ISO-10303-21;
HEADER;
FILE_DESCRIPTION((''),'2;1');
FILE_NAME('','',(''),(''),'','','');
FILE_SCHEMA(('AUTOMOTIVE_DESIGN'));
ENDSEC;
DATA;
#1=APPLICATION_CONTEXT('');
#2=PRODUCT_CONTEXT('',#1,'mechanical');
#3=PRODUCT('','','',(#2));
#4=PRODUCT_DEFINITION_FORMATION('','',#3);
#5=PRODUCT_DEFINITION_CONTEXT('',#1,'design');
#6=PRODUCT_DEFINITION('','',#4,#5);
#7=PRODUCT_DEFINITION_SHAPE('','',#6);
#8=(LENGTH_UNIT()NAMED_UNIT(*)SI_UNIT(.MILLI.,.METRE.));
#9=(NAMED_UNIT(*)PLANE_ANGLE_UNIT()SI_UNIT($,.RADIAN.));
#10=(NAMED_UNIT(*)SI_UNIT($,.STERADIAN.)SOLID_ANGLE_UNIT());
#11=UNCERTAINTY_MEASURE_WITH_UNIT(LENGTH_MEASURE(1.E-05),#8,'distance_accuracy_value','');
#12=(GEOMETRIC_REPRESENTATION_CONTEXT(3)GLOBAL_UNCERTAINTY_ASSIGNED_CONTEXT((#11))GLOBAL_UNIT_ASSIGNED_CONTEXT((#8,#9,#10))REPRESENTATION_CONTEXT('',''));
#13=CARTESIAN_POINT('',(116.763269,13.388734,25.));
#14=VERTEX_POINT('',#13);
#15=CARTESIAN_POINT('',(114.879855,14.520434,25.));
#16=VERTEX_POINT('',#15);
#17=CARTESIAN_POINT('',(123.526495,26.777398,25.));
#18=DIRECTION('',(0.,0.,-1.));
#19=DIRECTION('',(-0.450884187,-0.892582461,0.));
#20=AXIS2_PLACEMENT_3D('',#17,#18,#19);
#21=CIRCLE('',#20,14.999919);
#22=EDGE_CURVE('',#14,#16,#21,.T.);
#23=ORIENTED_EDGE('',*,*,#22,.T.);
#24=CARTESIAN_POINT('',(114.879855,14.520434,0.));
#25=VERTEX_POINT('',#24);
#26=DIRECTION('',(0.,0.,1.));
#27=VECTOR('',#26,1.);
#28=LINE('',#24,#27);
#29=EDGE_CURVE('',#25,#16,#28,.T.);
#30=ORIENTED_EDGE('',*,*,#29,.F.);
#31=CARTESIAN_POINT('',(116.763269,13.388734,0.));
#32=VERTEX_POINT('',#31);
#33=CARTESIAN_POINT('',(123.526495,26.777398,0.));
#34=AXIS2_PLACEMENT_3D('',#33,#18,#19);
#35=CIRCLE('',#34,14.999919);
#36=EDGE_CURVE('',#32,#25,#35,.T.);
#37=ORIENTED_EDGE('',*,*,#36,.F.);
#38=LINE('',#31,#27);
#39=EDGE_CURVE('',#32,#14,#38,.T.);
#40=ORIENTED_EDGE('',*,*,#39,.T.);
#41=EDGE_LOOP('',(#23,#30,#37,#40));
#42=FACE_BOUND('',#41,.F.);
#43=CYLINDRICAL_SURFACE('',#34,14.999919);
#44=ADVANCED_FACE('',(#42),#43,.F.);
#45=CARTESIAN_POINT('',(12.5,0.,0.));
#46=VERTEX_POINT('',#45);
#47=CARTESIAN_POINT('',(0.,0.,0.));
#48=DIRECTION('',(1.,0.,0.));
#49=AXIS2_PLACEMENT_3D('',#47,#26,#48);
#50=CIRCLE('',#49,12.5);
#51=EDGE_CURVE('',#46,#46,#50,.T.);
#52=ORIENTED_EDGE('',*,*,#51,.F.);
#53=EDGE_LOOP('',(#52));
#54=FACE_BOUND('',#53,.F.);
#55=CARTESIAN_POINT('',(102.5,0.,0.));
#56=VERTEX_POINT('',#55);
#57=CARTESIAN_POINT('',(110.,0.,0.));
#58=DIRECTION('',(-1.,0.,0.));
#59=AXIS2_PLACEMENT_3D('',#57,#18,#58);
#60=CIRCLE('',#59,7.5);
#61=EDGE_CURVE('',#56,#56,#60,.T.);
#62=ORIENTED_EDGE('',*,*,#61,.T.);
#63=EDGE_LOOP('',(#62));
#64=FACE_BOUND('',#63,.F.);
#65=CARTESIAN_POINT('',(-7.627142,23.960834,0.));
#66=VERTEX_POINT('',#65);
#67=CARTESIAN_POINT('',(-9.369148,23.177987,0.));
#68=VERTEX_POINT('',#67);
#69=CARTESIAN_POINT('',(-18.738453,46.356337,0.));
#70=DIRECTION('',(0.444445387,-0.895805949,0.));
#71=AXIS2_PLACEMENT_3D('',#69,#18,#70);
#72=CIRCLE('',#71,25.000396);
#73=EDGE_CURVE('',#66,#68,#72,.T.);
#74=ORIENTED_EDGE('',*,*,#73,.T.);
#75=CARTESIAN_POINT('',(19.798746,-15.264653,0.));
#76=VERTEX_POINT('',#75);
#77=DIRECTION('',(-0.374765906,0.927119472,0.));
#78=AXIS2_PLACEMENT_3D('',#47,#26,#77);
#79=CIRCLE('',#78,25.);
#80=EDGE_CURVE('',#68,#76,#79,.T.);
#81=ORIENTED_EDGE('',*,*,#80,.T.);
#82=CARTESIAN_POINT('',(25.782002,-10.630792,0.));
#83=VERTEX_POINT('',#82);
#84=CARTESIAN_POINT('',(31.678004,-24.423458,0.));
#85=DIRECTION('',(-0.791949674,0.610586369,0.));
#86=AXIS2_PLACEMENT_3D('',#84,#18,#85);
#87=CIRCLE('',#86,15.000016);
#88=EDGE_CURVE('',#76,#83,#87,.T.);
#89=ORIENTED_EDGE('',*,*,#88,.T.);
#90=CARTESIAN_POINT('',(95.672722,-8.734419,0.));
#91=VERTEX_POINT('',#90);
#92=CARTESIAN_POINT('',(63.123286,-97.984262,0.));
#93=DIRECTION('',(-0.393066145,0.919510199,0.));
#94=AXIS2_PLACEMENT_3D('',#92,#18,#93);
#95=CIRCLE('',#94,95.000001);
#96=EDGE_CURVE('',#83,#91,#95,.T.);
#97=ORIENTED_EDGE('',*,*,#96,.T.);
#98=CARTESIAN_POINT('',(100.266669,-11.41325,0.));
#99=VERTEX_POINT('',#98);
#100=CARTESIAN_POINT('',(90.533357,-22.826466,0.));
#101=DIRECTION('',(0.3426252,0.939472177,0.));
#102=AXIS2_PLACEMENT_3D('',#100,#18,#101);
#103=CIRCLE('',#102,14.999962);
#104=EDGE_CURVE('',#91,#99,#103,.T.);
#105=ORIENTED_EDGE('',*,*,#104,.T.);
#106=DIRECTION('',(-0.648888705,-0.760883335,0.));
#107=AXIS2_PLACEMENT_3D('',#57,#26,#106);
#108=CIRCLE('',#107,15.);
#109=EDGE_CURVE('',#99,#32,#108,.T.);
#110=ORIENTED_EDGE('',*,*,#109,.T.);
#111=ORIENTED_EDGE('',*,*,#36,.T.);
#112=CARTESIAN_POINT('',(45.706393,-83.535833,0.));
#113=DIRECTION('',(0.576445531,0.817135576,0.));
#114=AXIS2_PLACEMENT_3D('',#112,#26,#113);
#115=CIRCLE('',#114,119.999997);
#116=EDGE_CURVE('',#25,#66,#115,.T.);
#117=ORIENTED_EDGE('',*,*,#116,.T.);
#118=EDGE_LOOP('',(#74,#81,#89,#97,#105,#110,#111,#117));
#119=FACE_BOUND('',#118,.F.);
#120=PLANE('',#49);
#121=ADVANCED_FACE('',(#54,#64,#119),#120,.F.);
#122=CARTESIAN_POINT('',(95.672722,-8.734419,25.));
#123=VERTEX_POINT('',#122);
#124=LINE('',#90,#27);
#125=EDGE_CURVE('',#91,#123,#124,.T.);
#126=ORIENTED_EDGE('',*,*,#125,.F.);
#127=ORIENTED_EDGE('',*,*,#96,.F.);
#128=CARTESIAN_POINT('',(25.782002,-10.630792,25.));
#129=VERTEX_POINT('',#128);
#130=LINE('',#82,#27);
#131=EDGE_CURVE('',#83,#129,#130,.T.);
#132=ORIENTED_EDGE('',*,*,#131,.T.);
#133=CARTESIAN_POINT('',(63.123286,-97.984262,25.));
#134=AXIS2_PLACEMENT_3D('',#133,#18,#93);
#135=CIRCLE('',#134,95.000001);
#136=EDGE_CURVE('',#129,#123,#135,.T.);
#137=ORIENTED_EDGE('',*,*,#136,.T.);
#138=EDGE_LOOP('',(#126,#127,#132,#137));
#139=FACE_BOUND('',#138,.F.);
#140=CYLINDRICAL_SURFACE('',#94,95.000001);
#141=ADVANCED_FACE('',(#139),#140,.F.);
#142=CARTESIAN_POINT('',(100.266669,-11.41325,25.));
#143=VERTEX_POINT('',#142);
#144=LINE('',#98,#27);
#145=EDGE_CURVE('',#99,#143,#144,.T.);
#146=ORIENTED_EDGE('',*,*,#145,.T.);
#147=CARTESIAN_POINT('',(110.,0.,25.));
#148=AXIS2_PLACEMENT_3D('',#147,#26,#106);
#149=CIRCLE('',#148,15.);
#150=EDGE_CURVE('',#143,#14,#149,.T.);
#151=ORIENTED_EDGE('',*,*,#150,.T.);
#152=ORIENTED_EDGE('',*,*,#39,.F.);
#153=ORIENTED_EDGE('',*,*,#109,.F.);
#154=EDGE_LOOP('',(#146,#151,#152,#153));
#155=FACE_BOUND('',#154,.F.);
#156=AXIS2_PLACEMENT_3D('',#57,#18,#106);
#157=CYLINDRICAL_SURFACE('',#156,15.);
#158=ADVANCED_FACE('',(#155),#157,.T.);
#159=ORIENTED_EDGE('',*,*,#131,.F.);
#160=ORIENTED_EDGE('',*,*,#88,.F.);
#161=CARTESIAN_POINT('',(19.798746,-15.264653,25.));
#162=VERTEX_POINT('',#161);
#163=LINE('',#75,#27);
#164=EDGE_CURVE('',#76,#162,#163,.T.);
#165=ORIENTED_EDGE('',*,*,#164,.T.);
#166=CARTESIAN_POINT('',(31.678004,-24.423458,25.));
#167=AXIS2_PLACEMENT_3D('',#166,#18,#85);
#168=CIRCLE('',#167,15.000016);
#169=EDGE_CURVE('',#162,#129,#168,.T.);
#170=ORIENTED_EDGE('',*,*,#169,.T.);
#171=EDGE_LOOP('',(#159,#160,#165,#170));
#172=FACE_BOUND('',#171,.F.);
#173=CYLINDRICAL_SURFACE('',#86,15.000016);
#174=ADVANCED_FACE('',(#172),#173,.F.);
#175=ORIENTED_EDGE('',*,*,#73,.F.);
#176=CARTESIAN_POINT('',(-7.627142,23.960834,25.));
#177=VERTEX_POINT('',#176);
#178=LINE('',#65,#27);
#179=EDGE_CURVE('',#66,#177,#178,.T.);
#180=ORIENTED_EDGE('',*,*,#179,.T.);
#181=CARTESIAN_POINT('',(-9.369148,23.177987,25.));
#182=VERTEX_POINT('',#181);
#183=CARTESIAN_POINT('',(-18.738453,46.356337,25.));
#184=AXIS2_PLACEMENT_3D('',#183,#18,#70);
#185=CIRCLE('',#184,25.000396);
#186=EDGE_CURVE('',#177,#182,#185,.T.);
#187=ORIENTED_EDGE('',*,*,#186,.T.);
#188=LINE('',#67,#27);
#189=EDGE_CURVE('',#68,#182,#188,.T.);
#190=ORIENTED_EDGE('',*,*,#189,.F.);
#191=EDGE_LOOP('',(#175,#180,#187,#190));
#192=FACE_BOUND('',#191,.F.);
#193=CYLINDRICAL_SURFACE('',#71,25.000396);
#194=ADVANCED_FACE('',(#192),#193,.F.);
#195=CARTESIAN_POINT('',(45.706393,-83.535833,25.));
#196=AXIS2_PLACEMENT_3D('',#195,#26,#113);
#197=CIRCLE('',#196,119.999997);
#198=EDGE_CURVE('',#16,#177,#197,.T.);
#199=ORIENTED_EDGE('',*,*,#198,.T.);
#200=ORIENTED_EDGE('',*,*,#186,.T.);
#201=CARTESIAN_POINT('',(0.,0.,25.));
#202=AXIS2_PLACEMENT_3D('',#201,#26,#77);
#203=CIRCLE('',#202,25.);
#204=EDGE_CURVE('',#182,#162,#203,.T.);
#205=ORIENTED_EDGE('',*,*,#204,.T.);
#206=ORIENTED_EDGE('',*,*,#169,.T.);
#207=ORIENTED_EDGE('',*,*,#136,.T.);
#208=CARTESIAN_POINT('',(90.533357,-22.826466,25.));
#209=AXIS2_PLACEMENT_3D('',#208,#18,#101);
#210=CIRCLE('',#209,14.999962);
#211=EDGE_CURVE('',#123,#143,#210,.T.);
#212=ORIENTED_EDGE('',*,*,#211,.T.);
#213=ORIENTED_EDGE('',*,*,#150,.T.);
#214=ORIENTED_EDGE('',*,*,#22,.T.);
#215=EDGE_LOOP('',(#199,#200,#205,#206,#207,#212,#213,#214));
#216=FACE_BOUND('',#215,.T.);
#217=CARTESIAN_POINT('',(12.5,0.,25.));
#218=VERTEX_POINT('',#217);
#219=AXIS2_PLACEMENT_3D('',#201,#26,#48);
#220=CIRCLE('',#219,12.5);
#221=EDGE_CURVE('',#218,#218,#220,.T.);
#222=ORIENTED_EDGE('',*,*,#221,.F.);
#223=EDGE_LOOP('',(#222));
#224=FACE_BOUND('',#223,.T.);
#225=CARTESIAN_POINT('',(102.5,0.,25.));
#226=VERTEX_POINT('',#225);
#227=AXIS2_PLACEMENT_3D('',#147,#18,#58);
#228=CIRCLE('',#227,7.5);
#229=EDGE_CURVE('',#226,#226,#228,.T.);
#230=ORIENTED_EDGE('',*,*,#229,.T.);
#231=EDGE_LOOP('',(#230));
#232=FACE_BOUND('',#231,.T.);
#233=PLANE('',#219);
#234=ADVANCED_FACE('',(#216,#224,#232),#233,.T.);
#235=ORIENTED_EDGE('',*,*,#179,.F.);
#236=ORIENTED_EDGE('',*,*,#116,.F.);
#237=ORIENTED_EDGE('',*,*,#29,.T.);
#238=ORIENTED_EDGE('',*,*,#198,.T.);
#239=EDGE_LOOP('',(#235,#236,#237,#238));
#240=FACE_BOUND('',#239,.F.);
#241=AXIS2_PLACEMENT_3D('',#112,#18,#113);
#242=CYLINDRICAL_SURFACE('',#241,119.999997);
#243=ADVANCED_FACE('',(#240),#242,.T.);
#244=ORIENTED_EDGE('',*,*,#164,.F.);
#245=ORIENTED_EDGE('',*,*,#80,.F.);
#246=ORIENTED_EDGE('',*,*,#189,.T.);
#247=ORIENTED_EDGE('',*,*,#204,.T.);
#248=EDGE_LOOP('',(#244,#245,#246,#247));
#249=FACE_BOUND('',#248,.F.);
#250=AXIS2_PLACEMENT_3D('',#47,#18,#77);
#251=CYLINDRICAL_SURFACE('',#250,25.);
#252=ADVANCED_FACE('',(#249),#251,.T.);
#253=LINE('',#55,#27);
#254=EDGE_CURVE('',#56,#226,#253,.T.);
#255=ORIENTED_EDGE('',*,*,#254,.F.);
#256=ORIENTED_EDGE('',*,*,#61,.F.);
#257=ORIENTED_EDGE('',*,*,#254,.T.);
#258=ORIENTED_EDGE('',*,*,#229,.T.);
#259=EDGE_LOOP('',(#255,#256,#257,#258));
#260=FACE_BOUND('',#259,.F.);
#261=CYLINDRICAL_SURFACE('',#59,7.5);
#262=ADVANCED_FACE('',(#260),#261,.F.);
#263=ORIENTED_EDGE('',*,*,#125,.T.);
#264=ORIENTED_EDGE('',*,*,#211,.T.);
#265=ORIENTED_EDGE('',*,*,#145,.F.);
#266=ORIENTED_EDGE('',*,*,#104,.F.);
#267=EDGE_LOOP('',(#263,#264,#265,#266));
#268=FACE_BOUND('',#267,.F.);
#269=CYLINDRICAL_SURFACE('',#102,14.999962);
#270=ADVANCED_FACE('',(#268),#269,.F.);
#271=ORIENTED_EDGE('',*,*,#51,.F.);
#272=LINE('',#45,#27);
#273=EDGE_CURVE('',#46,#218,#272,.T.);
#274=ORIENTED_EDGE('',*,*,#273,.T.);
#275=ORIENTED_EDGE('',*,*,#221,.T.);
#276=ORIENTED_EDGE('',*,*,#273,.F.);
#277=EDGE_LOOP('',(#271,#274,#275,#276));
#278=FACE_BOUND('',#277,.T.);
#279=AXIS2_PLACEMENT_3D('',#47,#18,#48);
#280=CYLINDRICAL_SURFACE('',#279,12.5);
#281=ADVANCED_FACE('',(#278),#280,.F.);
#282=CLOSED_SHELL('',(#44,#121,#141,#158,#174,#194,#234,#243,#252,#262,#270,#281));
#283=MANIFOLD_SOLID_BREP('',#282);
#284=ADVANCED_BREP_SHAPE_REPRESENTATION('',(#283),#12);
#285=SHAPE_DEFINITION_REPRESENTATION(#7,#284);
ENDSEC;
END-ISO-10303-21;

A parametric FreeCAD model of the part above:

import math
import FreeCAD as App
import Part
import Sketcher
from FreeCAD import Vector
Q = App.Units.Quantity

doc = App.newDocument("Part")
body = doc.addObject("PartDesign::Body", "Body")

# Sketch on XY plane
sketch1 = body.newObject("Sketcher::SketchObject", "Sketch")
sketch1.AttachmentSupport = (doc.getObject("XY_Plane"), [""])
sketch1.MapMode = "FlatFace"
sketch1.addGeometry([
    Part.ArcOfCircle(Part.Circle(Vector(-18.7, 46.4, 0), Vector(0, 0, 1), 25), math.radians(-67.99), math.radians(-63.61)),  # 0
    Part.ArcOfCircle(Part.Circle(Vector(0, 0, 0), Vector(0, 0, 1), 25), math.radians(112), math.radians(322)),  # 1
    Part.ArcOfCircle(Part.Circle(Vector(31.7, -24.4, 0), Vector(0, 0, 1), 15), math.radians(113), math.radians(142)),  # 2
    Part.ArcOfCircle(Part.Circle(Vector(63.1, -98, 0), Vector(0, 0, 1), 95), math.radians(70), math.radians(113)),  # 3
    Part.ArcOfCircle(Part.Circle(Vector(90.5, -22.8, 0), Vector(0, 0, 1), 15), math.radians(50), math.radians(70)),  # 4
    Part.ArcOfCircle(Part.Circle(Vector(110, 0, 0), Vector(0, 0, 1), 15), math.radians(-130), math.radians(63)),  # 5
    Part.ArcOfCircle(Part.Circle(Vector(123.5, 26.8, 0), Vector(0, 0, 1), 15), math.radians(-125.2), math.radians(-116.8)),  # 6
    Part.ArcOfCircle(Part.Circle(Vector(45.7, -83.5, 0), Vector(0, 0, 1), 120), math.radians(55), math.radians(116)),  # 7
    Part.Circle(Vector(0, 0, 0), Vector(0, 0, 1), 12.5),  # 8
    Part.Circle(Vector(110, 0, 0), Vector(0, 0, 1), 7.5),  # 9
], False)
sketch1.addConstraint([
    Sketcher.Constraint("Tangent", 0, 1, 1, 1),
    Sketcher.Constraint("Tangent", 1, 2, 2, 2),
    Sketcher.Constraint("Tangent", 2, 1, 3, 2),
    Sketcher.Constraint("Tangent", 3, 1, 4, 2),
    Sketcher.Constraint("Tangent", 4, 1, 5, 1),
    Sketcher.Constraint("Tangent", 5, 2, 6, 2),
    Sketcher.Constraint("Tangent", 6, 1, 7, 1),
    Sketcher.Constraint("Tangent", 7, 2, 0, 2),
    Sketcher.Constraint("Coincident", 1, 3, -1, 1),
    Sketcher.Constraint("Coincident", 8, 3, -1, 1),
    Sketcher.Constraint("Coincident", 9, 3, 5, 3),
    Sketcher.Constraint("PointOnObject", 5, 3, -1),
    Sketcher.Constraint("Diameter", 8, Q("25 mm")),
    Sketcher.Constraint("Diameter", 9, Q("15 mm")),
    Sketcher.Constraint("Radius", 1, Q("25 mm")),
    Sketcher.Constraint("Radius", 3, Q("95.000001 mm")),
    Sketcher.Constraint("Radius", 5, Q("15 mm")),
    Sketcher.Constraint("DistanceX", -1, 1, 5, 3, Q("110 mm")),
    Sketcher.Constraint("Radius", 6, Q("14.999919 mm")),
    Sketcher.Constraint("Radius", 0, Q("25.000396 mm")),
    Sketcher.Constraint("Radius", 2, Q("15.000016 mm")),
    Sketcher.Constraint("Radius", 4, Q("14.999962 mm")),
    Sketcher.Constraint("Radius", 7, Q("119.999997 mm")),
    Sketcher.Constraint("DistanceX", 2, 1, 2, 3, Q("5.896002 mm")),
    Sketcher.Constraint("DistanceY", -1, 1, 6, 3, Q("26.777398 mm")),
    Sketcher.Constraint("DistanceY", 3, 3, 0, 3, Q("144.3406 mm")),
    Sketcher.Constraint("DistanceX", 4, 1, 5, 2, Q("16.4966 mm")),
])
pad1 = body.newObject("PartDesign::Pad", "Pad")
pad1.Profile = sketch1
pad1.Length = 25

doc.recompute()
